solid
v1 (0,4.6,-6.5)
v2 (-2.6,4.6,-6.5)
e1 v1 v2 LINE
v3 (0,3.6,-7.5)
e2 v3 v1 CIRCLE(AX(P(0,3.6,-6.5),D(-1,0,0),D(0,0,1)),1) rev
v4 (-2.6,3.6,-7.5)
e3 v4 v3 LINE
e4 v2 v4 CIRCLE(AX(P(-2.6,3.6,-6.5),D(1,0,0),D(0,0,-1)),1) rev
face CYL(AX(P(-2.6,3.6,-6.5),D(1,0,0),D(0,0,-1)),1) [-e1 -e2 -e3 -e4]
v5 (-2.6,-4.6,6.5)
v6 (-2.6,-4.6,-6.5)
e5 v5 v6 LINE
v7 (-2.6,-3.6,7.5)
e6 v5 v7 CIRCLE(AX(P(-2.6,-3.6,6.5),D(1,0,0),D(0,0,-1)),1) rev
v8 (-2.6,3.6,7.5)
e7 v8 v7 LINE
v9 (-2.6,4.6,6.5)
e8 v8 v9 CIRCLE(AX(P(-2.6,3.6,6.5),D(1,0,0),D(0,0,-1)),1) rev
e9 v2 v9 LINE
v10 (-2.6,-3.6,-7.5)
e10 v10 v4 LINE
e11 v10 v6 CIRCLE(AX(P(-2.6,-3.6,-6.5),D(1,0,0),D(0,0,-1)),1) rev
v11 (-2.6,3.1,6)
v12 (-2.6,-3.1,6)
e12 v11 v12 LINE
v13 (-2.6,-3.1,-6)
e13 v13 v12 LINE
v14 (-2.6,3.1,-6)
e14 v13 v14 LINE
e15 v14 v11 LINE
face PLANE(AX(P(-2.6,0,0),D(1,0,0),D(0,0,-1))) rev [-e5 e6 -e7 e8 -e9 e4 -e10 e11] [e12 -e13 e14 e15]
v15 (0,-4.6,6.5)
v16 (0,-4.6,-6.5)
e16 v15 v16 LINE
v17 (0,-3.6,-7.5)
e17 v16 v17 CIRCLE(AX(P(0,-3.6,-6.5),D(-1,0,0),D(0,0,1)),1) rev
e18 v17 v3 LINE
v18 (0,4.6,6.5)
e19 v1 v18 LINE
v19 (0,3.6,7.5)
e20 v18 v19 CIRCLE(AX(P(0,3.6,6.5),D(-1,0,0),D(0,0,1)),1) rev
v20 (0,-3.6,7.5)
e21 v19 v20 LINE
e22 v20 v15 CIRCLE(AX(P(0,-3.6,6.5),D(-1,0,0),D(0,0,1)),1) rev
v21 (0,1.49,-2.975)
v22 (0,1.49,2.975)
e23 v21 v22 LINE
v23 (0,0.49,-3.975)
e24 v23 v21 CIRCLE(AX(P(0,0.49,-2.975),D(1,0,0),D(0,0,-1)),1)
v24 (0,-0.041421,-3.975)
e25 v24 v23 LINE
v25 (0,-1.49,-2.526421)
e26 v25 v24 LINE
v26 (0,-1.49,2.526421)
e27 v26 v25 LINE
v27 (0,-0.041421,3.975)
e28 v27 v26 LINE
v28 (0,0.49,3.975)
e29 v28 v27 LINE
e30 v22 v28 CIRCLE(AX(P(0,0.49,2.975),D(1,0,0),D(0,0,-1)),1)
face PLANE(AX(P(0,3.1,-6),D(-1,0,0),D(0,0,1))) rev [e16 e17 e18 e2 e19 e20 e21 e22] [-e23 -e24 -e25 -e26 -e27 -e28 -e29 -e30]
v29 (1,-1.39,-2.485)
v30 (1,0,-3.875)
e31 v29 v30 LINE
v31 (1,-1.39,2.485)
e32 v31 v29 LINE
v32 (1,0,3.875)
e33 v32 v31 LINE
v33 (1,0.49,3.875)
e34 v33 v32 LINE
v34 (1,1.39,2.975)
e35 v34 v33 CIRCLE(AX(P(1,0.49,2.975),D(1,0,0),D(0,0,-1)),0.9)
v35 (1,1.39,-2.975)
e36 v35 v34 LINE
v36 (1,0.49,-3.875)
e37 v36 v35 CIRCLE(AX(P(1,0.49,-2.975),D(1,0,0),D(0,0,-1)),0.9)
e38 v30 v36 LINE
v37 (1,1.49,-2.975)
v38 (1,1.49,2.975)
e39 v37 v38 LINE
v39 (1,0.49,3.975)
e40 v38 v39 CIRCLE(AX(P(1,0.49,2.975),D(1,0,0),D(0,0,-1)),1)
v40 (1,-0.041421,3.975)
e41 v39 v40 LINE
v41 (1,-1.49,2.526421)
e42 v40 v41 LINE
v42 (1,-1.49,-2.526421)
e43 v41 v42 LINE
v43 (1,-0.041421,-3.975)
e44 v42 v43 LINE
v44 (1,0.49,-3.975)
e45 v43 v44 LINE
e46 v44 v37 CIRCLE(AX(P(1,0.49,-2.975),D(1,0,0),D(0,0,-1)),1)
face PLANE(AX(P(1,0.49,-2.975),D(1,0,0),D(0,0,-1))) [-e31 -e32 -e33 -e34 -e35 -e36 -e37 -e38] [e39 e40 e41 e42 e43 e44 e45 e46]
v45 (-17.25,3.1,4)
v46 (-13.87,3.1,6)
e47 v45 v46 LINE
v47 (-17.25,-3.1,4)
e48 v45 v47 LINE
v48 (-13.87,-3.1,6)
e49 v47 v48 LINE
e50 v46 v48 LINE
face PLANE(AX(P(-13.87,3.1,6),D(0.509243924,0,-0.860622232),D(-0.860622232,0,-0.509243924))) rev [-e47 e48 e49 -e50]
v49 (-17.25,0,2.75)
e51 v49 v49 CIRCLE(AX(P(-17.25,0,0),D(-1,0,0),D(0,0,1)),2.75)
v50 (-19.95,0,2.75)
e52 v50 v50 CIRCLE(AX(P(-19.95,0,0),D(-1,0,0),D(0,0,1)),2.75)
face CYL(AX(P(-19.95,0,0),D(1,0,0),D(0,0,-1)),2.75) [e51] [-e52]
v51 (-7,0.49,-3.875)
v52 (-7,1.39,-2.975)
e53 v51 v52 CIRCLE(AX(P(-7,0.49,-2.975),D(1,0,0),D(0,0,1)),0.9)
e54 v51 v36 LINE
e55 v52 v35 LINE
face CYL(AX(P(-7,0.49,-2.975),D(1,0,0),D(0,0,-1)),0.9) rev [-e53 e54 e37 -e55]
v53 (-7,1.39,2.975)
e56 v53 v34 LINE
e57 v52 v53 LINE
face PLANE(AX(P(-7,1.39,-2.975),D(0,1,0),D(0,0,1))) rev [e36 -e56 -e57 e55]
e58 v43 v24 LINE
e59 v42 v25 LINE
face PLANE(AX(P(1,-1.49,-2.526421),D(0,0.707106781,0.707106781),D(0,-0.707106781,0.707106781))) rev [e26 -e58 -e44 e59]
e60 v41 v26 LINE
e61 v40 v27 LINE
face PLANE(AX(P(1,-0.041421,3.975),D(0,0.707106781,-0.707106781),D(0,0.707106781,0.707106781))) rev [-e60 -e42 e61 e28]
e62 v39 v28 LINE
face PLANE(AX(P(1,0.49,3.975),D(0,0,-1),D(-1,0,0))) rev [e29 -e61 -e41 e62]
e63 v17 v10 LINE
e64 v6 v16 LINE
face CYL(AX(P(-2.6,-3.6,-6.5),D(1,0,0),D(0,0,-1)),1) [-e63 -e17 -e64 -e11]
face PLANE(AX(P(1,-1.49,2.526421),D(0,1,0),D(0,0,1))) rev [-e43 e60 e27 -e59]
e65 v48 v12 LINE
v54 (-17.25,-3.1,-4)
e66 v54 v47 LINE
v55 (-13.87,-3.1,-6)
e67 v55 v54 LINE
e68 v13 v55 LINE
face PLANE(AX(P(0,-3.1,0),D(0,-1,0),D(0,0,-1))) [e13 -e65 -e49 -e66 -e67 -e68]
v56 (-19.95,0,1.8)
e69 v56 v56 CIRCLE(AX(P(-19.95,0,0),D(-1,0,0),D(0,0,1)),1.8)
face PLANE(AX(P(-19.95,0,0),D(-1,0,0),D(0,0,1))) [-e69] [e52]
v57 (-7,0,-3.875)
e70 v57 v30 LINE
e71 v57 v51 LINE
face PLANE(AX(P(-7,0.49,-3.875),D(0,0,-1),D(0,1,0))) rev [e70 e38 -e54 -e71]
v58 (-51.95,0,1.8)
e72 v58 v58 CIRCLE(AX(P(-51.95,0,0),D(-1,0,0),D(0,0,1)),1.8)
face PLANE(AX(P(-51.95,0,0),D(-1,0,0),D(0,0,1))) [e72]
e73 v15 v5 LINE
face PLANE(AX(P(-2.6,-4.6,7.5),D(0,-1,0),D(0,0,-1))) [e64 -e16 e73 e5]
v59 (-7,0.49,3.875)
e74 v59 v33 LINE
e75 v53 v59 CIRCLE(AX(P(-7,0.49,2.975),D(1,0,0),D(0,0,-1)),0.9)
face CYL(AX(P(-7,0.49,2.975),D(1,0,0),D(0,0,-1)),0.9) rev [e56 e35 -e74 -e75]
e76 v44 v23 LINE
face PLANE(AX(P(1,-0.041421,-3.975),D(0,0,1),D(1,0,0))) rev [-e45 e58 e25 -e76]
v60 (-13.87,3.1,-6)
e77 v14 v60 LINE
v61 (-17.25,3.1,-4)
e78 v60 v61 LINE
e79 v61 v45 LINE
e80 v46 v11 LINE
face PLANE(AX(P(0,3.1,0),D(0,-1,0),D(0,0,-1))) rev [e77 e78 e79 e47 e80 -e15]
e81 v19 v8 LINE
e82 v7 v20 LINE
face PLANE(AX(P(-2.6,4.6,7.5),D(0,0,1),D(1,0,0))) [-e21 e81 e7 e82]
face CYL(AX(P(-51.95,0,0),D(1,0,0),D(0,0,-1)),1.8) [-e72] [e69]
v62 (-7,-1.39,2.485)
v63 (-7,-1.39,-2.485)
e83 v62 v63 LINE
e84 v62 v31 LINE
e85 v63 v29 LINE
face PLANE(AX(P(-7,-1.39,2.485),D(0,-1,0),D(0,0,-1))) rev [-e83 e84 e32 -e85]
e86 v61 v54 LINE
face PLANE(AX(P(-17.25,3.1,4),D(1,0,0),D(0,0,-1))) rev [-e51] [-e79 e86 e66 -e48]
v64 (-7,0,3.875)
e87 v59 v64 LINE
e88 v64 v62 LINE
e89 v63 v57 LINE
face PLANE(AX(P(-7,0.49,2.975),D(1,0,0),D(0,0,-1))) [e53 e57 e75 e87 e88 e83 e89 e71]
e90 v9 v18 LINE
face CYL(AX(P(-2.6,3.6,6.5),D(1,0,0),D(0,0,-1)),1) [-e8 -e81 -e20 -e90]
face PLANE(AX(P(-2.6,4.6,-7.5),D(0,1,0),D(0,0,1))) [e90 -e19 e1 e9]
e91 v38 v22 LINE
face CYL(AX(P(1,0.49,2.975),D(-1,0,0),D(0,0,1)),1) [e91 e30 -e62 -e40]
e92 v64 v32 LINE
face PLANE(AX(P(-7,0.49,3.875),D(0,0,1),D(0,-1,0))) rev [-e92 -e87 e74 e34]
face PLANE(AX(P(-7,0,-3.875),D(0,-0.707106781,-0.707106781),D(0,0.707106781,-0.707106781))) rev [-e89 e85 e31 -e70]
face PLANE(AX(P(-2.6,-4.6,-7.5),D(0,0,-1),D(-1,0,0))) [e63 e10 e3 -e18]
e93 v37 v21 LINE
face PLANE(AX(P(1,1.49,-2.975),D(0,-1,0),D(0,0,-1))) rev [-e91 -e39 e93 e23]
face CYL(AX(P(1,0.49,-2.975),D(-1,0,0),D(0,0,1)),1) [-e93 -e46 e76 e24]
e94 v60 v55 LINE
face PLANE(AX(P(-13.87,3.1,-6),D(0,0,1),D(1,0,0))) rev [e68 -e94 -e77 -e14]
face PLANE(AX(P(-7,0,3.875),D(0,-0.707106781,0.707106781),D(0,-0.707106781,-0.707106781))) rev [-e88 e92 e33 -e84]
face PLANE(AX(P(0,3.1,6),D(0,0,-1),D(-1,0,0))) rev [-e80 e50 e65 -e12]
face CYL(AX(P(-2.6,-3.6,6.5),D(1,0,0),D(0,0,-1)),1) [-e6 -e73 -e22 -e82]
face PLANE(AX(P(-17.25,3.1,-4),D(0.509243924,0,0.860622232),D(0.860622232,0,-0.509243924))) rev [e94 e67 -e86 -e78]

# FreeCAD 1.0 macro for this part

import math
import FreeCAD as App
import Part
import Sketcher

V = App.Vector
Q = App.Units.Quantity


def edges_at(feature, points):
    """Names of the edges that pass closest to the given points."""
    edges = feature.Shape.Edges
    near = lambda p: min(range(len(edges)), key=lambda i: edges[i].distToShape(Part.Vertex(*p))[0])
    return sorted({f"Edge{near(p) + 1}" for p in points})

doc = App.newDocument("Part")
params = doc.addObject("Spreadsheet::Sheet", "Params")
for row, (alias, value) in enumerate([
    ("sketch1_height", "12 mm"),
    ("sketch1_height2", "8 mm"),
    ("sketch1_width", "13.87 mm"),
    ("pad1_length", "6.2 mm"),
    ("sketch2_height", "15 mm"),
    ("sketch2_width", "9.2 mm"),
    ("pad2_length", "2.6 mm"),
    ("sketch3_diameter", "5.5 mm"),
    ("pad3_length", "2.7 mm"),
    ("sketch4_diameter", "3.6 mm"),
    ("pad4_length", "32 mm"),
    ("fillet_radius", "1 mm"),
    ("sketch5_radius", "0.9 mm"),
    ("sketch5_width", "0.49 mm"),
    ("sketch5_height", "5.95 mm"),
    ("sketch5_height2", "4.97 mm"),
    ("pocket1_length", "7 mm"),
    ("sketch6_radius", "1 mm"),
    ("sketch6_radius2", "0.9 mm"),
    ("sketch6_width", "0.49 mm"),
    ("sketch6_height", "5.95 mm"),
    ("sketch6_height2", "4.97 mm"),
    ("pad5_length", "1 mm"),
], start=1):
    params.set(f"A{row}", alias)
    params.set(f"B{row}", "=" + value)
    params.setAlias(f"B{row}", alias)

body = doc.addObject("PartDesign::Body", "Body")

# Sketch on XZ plane
sketch1 = body.newObject("Sketcher::SketchObject", "Sketch")
sketch1.AttachmentSupport = (doc.getObject("XZ_Plane"), [""])
sketch1.MapMode = "FlatFace"
sketch1.addGeometry(Part.LineSegment(V(0, 6, 0), V(0, -6, 0)), False)
sketch1.addGeometry(Part.LineSegment(V(0, -6, 0), V(-13.87, -6, 0)), False)
sketch1.addGeometry(Part.LineSegment(V(-13.87, -6, 0), V(-17.25, -4, 0)), False)
sketch1.addGeometry(Part.LineSegment(V(-17.25, -4, 0), V(-17.25, 4, 0)), False)
sketch1.addGeometry(Part.LineSegment(V(-17.25, 4, 0), V(-13.87, 6, 0)), False)
sketch1.addGeometry(Part.LineSegment(V(-13.87, 6, 0), V(0, 6, 0)), False)
sketch1.addConstraint(Sketcher.Constraint("Coincident", 0, 2, 1, 1))
sketch1.addConstraint(Sketcher.Constraint("Coincident", 1, 2, 2, 1))
sketch1.addConstraint(Sketcher.Constraint("Coincident", 2, 2, 3, 1))
sketch1.addConstraint(Sketcher.Constraint("Coincident", 3, 2, 4, 1))
sketch1.addConstraint(Sketcher.Constraint("Coincident", 4, 2, 5, 1))
sketch1.addConstraint(Sketcher.Constraint("Coincident", 5, 2, 0, 1))
sketch1.addConstraint(Sketcher.Constraint("Vertical", 0))
sketch1.addConstraint(Sketcher.Constraint("Horizontal", 1))
sketch1.addConstraint(Sketcher.Constraint("Vertical", 3))
sketch1.addConstraint(Sketcher.Constraint("Horizontal", 5))
sketch1.addConstraint(Sketcher.Constraint("Symmetric", 0, 2, 5, 2, -1, 1))
sketch1.addConstraint(Sketcher.Constraint("Vertical", 1, 2, 4, 2))
sketch1.addConstraint(Sketcher.Constraint("Equal", 2, 4))
sketch1.addConstraint(Sketcher.Constraint("DistanceY", 0, 2, 0, 1, Q("12 mm")))
sketch1.addConstraint(Sketcher.Constraint("DistanceY", 3, 1, 3, 2, Q("8 mm")))
sketch1.addConstraint(Sketcher.Constraint("DistanceX", 1, 2, 1, 1, Q("13.87 mm")))
sketch1.addConstraint(Sketcher.Constraint("DistanceX", 2, 2, -1, 1, Q("17.25 mm")))
sketch1.setExpression("Constraints[13]", "Params.sketch1_height")
sketch1.setExpression("Constraints[14]", "Params.sketch1_height2")
sketch1.setExpression("Constraints[15]", "Params.sketch1_width")
pad1 = body.newObject("PartDesign::Pad", "Pad")
pad1.Profile = sketch1
pad1.setExpression("Length", "Params.pad1_length")
pad1.Midplane = True

# Sketch on YZ plane
sketch2 = body.newObject("Sketcher::SketchObject", "Sketch001")
sketch2.AttachmentSupport = (doc.getObject("YZ_Plane"), [""])
sketch2.MapMode = "FlatFace"
sketch2.addGeometry(Part.LineSegment(V(4.6, 7.5, 0), V(-4.6, 7.5, 0)), False)
sketch2.addGeometry(Part.LineSegment(V(-4.6, 7.5, 0), V(-4.6, -7.5, 0)), False)
sketch2.addGeometry(Part.LineSegment(V(-4.6, -7.5, 0), V(4.6, -7.5, 0)), False)
sketch2.addGeometry(Part.LineSegment(V(4.6, -7.5, 0), V(4.6, 7.5, 0)), False)
sketch2.addConstraint(Sketcher.Constraint("Coincident", 0, 2, 1, 1))
sketch2.addConstraint(Sketcher.Constraint("Coincident", 1, 2, 2, 1))
sketch2.addConstraint(Sketcher.Constraint("Coincident", 2, 2, 3, 1))
sketch2.addConstraint(Sketcher.Constraint("Coincident", 3, 2, 0, 1))
sketch2.addConstraint(Sketcher.Constraint("Horizontal", 0))
sketch2.addConstraint(Sketcher.Constraint("Vertical", 1))
sketch2.addConstraint(Sketcher.Constraint("Horizontal", 2))
sketch2.addConstraint(Sketcher.Constraint("Vertical", 3))
sketch2.addConstraint(Sketcher.Constraint("Symmetric", 0, 2, 2, 2, -1, 1))
sketch2.addConstraint(Sketcher.Constraint("DistanceY", 1, 2, 1, 1, Q("15 mm")))
sketch2.addConstraint(Sketcher.Constraint("DistanceX", 0, 2, 0, 1, Q("9.2 mm")))
sketch2.setExpression("Constraints[9]", "Params.sketch2_height")
sketch2.setExpression("Constraints[10]", "Params.sketch2_width")
pad2 = body.newObject("PartDesign::Pad", "Pad001")
pad2.Profile = sketch2
pad2.setExpression("Length", "Params.pad2_length")
pad2.Reversed = True

# Sketch on YZ plane
sketch3 = body.newObject("Sketcher::SketchObject", "Sketch002")
sketch3.AttachmentSupport = (doc.getObject("YZ_Plane"), [""])
sketch3.MapMode = "FlatFace"
sketch3.AttachmentOffset = App.Placement(V(0, 0, -17.25), App.Rotation())
sketch3.addGeometry(Part.Circle(V(0, 0, 0), V(0, 0, 1), 2.75), False)
sketch3.addConstraint(Sketcher.Constraint("Coincident", 0, 3, -1, 1))
sketch3.addConstraint(Sketcher.Constraint("Diameter", 0, Q("5.5 mm")))
sketch3.setExpression("Constraints[1]", "Params.sketch3_diameter")
pad3 = body.newObject("PartDesign::Pad", "Pad002")
pad3.Profile = sketch3
pad3.setExpression("Length", "Params.pad3_length")
pad3.Reversed = True

# Sketch on YZ plane
sketch4 = body.newObject("Sketcher::SketchObject", "Sketch003")
sketch4.AttachmentSupport = (doc.getObject("YZ_Plane"), [""])
sketch4.MapMode = "FlatFace"
sketch4.AttachmentOffset = App.Placement(V(0, 0, -19.95), App.Rotation())
sketch4.addGeometry(Part.Circle(V(0, 0, 0), V(0, 0, 1), 1.8), False)
sketch4.addConstraint(Sketcher.Constraint("Coincident", 0, 3, -1, 1))
sketch4.addConstraint(Sketcher.Constraint("Diameter", 0, Q("3.6 mm")))
sketch4.setExpression("Constraints[1]", "Params.sketch4_diameter")
pad4 = body.newObject("PartDesign::Pad", "Pad003")
pad4.Profile = sketch4
pad4.setExpression("Length", "Params.pad4_length")
pad4.Reversed = True
doc.recompute()

fillet = body.newObject("PartDesign::Fillet", "Fillet")
fillet.Base = (pad4, edges_at(pad4, [
    (-1.3, -4.6, 7.5),
    (-1.3, 4.6, 7.5),
    (-1.3, 4.6, -7.5),
    (-1.3, -4.6, -7.5),
]))
fillet.setExpression("Radius", "Params.fillet_radius")

# Sketch on YZ plane
sketch5 = body.newObject("Sketcher::SketchObject", "Sketch004")
sketch5.AttachmentSupport = (doc.getObject("YZ_Plane"), [""])
sketch5.MapMode = "FlatFace"
sketch5.addGeometry(Part.LineSegment(V(1.39, -2.975, 0), V(1.39, 2.975, 0)), False)
sketch5.addGeometry(Part.ArcOfCircle(Part.Circle(V(0.49, 2.975, 0), V(0, 0, 1), 0.9), math.radians(0), math.radians(90)), False)
sketch5.addGeometry(Part.LineSegment(V(0.49, 3.875, 0), V(0, 3.875, 0)), False)
sketch5.addGeometry(Part.LineSegment(V(0, 3.875, 0), V(-1.39, 2.485, 0)), False)
sketch5.addGeometry(Part.LineSegment(V(-1.39, 2.485, 0), V(-1.39, -2.485, 0)), False)
sketch5.addGeometry(Part.LineSegment(V(-1.39, -2.485, 0), V(0, -3.875, 0)), False)
sketch5.addGeometry(Part.LineSegment(V(0, -3.875, 0), V(0.49, -3.875, 0)), False)
sketch5.addGeometry(Part.ArcOfCircle(Part.Circle(V(0.49, -2.975, 0), V(0, 0, 1), 0.9), math.radians(-90), math.radians(0)), False)
sketch5.addConstraint(Sketcher.Constraint("Tangent", 0, 2, 1, 1))
sketch5.addConstraint(Sketcher.Constraint("Tangent", 1, 2, 2, 1))
sketch5.addConstraint(Sketcher.Constraint("Coincident", 2, 2, 3, 1))
sketch5.addConstraint(Sketcher.Constraint("Coincident", 3, 2, 4, 1))
sketch5.addConstraint(Sketcher.Constraint("Coincident", 4, 2, 5, 1))
sketch5.addConstraint(Sketcher.Constraint("Coincident", 5, 2, 6, 1))
sketch5.addConstraint(Sketcher.Constraint("Tangent", 6, 2, 7, 1))
sketch5.addConstraint(Sketcher.Constraint("Tangent", 7, 2, 0, 1))
sketch5.addConstraint(Sketcher.Constraint("Vertical", 0))
sketch5.addConstraint(Sketcher.Constraint("Horizontal", 2))
sketch5.addConstraint(Sketcher.Constraint("Vertical", 4))
sketch5.addConstraint(Sketcher.Constraint("Horizontal", 6))
sketch5.addConstraint(Sketcher.Constraint("Equal", 1, 7))
sketch5.addConstraint(Sketcher.Constraint("Symmetric", 2, 2, 5, 2, -1, 1))
sketch5.addConstraint(Sketcher.Constraint("PointOnObject", 2, 2, -2))
sketch5.addConstraint(Sketcher.Constraint("Perpendicular", 3, 5))
sketch5.addConstraint(Sketcher.Constraint("Equal", 3, 5))
sketch5.addConstraint(Sketcher.Constraint("Radius", 1, Q("0.9 mm")))
sketch5.addConstraint(Sketcher.Constraint("DistanceX", 2, 2, 2, 1, Q("0.49 mm")))
sketch5.addConstraint(Sketcher.Constraint("DistanceY", 0, 1, 0, 2, Q("5.95 mm")))
sketch5.addConstraint(Sketcher.Constraint("DistanceY", 4, 2, 4, 1, Q("4.97 mm")))
sketch5.setExpression("Constraints[17]", "Params.sketch5_radius")
sketch5.setExpression("Constraints[18]", "Params.sketch5_width")
sketch5.setExpression("Constraints[19]", "Params.sketch5_height")
sketch5.setExpression("Constraints[20]", "Params.sketch5_height2")
pocket1 = body.newObject("PartDesign::Pocket", "Pocket")
pocket1.Profile = sketch5
pocket1.setExpression("Length", "Params.pocket1_length")

# Sketch on YZ plane
sketch6 = body.newObject("Sketcher::SketchObject", "Sketch005")
sketch6.AttachmentSupport = (doc.getObject("YZ_Plane"), [""])
sketch6.MapMode = "FlatFace"
sketch6.addGeometry(Part.LineSegment(V(1.49, -2.975, 0), V(1.49, 2.975, 0)), False)
sketch6.addGeometry(Part.ArcOfCircle(Part.Circle(V(0.49, 2.975, 0), V(0, 0, 1), 1), math.radians(0), math.radians(90)), False)
sketch6.addGeometry(Part.LineSegment(V(0.49, 3.975, 0), V(-0.041421, 3.975, 0)), False)
sketch6.addGeometry(Part.LineSegment(V(-0.041421, 3.975, 0), V(-1.49, 2.526421, 0)), False)
sketch6.addGeometry(Part.LineSegment(V(-1.49, 2.526421, 0), V(-1.49, -2.526421, 0)), False)
sketch6.addGeometry(Part.LineSegment(V(-1.49, -2.526421, 0), V(-0.041421, -3.975, 0)), False)
sketch6.addGeometry(Part.LineSegment(V(-0.041421, -3.975, 0), V(0.49, -3.975, 0)), False)
sketch6.addGeometry(Part.ArcOfCircle(Part.Circle(V(0.49, -2.975, 0), V(0, 0, 1), 1), math.radians(-90), math.radians(0)), False)
sketch6.addGeometry(Part.LineSegment(V(0, 3.875, 0), V(0.49, 3.875, 0)), False)
sketch6.addGeometry(Part.ArcOfCircle(Part.Circle(V(0.49, 2.975, 0), V(0, 0, 1), 0.9), math.radians(0), math.radians(90)), False)
sketch6.addGeometry(Part.LineSegment(V(1.39, 2.975, 0), V(1.39, -2.975, 0)), False)
sketch6.addGeometry(Part.ArcOfCircle(Part.Circle(V(0.49, -2.975, 0), V(0, 0, 1), 0.9), math.radians(-90), math.radians(0)), False)
sketch6.addGeometry(Part.LineSegment(V(0.49, -3.875, 0), V(0, -3.875, 0)), False)
sketch6.addGeometry(Part.LineSegment(V(0, -3.875, 0), V(-1.39, -2.485, 0)), False)
sketch6.addGeometry(Part.LineSegment(V(-1.39, -2.485, 0), V(-1.39, 2.485, 0)), False)
sketch6.addGeometry(Part.LineSegment(V(-1.39, 2.485, 0), V(0, 3.875, 0)), False)
sketch6.addConstraint(Sketcher.Constraint("Tangent", 0, 2, 1, 1))
sketch6.addConstraint(Sketcher.Constraint("Tangent", 1, 2, 2, 1))
sketch6.addConstraint(Sketcher.Constraint("Coincident", 2, 2, 3, 1))
sketch6.addConstraint(Sketcher.Constraint("Coincident", 3, 2, 4, 1))
sketch6.addConstraint(Sketcher.Constraint("Coincident", 4, 2, 5, 1))
sketch6.addConstraint(Sketcher.Constraint("Coincident", 5, 2, 6, 1))
sketch6.addConstraint(Sketcher.Constraint("Tangent", 6, 2, 7, 1))
sketch6.addConstraint(Sketcher.Constraint("Tangent", 7, 2, 0, 1))
sketch6.addConstraint(Sketcher.Constraint("Tangent", 8, 2, 9, 2))
sketch6.addConstraint(Sketcher.Constraint("Tangent", 9, 1, 10, 1))
sketch6.addConstraint(Sketcher.Constraint("Tangent", 10, 2, 11, 2))
sketch6.addConstraint(Sketcher.Constraint("Tangent", 11, 1, 12, 1))
sketch6.addConstraint(Sketcher.Constraint("Coincident", 12, 2, 13, 1))
sketch6.addConstraint(Sketcher.Constraint("Coincident", 13, 2, 14, 1))
sketch6.addConstraint(Sketcher.Constraint("Coincident", 14, 2, 15, 1))
sketch6.addConstraint(Sketcher.Constraint("Coincident", 15, 2, 8, 1))
sketch6.addConstraint(Sketcher.Constraint("Vertical", 0))
sketch6.addConstraint(Sketcher.Constraint("Horizontal", 2))
sketch6.addConstraint(Sketcher.Constraint("Vertical", 4))
sketch6.addConstraint(Sketcher.Constraint("Horizontal", 6))
sketch6.addConstraint(Sketcher.Constraint("Horizontal", 8))
sketch6.addConstraint(Sketcher.Constraint("Vertical", 10))
sketch6.addConstraint(Sketcher.Constraint("Horizontal", 12))
sketch6.addConstraint(Sketcher.Constraint("Vertical", 14))
sketch6.addConstraint(Sketcher.Constraint("Coincident", 9, 3, 1, 3))
sketch6.addConstraint(Sketcher.Constraint("Coincident", 11, 3, 7, 3))
sketch6.addConstraint(Sketcher.Constraint("Equal", 1, 7))
sketch6.addConstraint(Sketcher.Constraint("Symmetric", 12, 2, 15, 2, -1, 1))
sketch6.addConstraint(Sketcher.Constraint("PointOnObject", 12, 2, -2))
sketch6.addConstraint(Sketcher.Constraint("Perpendicular", 3, 5))
sketch6.addConstraint(Sketcher.Constraint("Parallel", 5, 13))
sketch6.addConstraint(Sketcher.Constraint("Perpendicular", 13, 15))
sketch6.addConstraint(Sketcher.Constraint("Vertical", 2, 2, 5, 2))
sketch6.addConstraint(Sketcher.Constraint("Equal", 3, 5))
sketch6.addConstraint(Sketcher.Constraint("Radius", 1, Q("1 mm")))
sketch6.addConstraint(Sketcher.Constraint("Radius", 9, Q("0.9 mm")))
sketch6.addConstraint(Sketcher.Constraint("DistanceX", 8, 1, 8, 2, Q("0.49 mm")))
sketch6.addConstraint(Sketcher.Constraint("DistanceY", 0, 1, 0, 2, Q("5.95 mm")))
sketch6.addConstraint(Sketcher.Constraint("DistanceY", 14, 1, 14, 2, Q("4.97 mm")))
sketch6.addConstraint(Sketcher.Constraint("DistanceX", 4, 2, 13, 2, Q("0.1 mm")))
sketch6.addConstraint(Sketcher.Constraint("Distance", 3, Q("2.0486 mm")))
sketch6.setExpression("Constraints[34]", "Params.sketch6_radius")
sketch6.setExpression("Constraints[35]", "Params.sketch6_radius2")
sketch6.setExpression("Constraints[36]", "Params.sketch6_width")
sketch6.setExpression("Constraints[37]", "Params.sketch6_height")
sketch6.setExpression("Constraints[38]", "Params.sketch6_height2")
pad5 = body.newObject("PartDesign::Pad", "Pad004")
pad5.Profile = sketch6
pad5.setExpression("Length", "Params.pad5_length")

doc.recompute()
